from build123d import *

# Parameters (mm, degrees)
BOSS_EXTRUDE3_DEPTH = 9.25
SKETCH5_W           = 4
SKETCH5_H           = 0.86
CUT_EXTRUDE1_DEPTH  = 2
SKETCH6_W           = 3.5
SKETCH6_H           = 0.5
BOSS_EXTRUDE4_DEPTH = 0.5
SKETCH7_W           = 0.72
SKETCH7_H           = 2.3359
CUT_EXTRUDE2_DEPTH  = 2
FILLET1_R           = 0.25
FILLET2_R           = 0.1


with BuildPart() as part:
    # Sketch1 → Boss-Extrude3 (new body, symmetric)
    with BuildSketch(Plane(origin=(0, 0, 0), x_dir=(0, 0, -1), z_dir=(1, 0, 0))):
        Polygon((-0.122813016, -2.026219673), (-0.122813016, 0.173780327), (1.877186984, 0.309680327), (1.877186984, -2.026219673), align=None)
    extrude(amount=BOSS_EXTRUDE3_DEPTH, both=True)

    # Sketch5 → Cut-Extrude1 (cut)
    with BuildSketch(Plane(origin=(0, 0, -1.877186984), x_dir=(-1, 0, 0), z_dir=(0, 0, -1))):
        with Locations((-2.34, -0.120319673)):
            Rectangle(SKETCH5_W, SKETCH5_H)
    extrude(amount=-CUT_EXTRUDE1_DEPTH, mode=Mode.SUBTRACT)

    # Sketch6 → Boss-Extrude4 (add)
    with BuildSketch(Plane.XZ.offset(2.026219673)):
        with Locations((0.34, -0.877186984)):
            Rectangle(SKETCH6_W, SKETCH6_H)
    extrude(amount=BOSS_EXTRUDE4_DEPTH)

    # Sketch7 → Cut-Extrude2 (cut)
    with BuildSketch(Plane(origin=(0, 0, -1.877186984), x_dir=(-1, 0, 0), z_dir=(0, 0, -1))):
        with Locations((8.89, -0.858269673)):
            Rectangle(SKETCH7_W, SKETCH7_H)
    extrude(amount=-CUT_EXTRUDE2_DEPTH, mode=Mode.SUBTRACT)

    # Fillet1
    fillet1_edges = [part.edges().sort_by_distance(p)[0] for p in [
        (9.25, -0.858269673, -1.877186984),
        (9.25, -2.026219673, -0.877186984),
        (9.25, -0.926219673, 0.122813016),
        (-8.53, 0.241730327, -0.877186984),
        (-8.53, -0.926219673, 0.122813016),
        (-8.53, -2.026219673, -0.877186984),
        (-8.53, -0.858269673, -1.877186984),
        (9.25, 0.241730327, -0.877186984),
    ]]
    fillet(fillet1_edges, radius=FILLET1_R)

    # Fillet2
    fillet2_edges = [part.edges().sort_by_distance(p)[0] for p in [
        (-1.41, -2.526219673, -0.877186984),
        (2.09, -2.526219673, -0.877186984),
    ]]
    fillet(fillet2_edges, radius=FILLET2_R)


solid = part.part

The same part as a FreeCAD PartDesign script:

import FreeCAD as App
import Part
import Sketcher


def edges_at(feature, points):
    """Names of the edges that pass closest to the given points."""
    edges = feature.Shape.Edges
    near = lambda p: min(range(len(edges)), key=lambda i: edges[i].distToShape(Part.Vertex(*p))[0])
    return sorted({f"Edge{near(p) + 1}" for p in points})

doc = App.newDocument("Part")
body = doc.addObject("PartDesign::Body", "Body")

sketch1 = doc.addObject("Sketcher::SketchObject", "Sketch")
body.addObject(sketch1)
sketch1.AttachmentSupport = (doc.YZ_Plane, [""])
sketch1.MapMode = "FlatFace"
sketch1.addGeometry([
    Part.LineSegment(App.Vector(0.2, 0.1, 0), App.Vector(-2, 0.1, 0)),
    Part.LineSegment(App.Vector(-2, 0.1, 0), App.Vector(-2, -1.9, 0)),
    Part.LineSegment(App.Vector(-2, -1.9, 0), App.Vector(0.3, -1.9, 0)),
    Part.LineSegment(App.Vector(0.3, -1.9, 0), App.Vector(0.2, 0.1, 0)),
], False)
sketch1.addConstraint([
    Sketcher.Constraint("Coincident", 0, 2, 1, 1),
    Sketcher.Constraint("Coincident", 1, 2, 2, 1),
    Sketcher.Constraint("Coincident", 2, 2, 3, 1),
    Sketcher.Constraint("Coincident", 3, 2, 0, 1),
    Sketcher.Constraint("Horizontal", 0),
    Sketcher.Constraint("Vertical", 1),
    Sketcher.Constraint("Horizontal", 2),
    Sketcher.Constraint("DistanceY", 1, 2, 1, 1, 2.0),
    Sketcher.Constraint("DistanceX", 0, 2, 0, 1, 2.2),
    Sketcher.Constraint("DistanceX", 2, 1, 2, 2, 2.3359),
    Sketcher.Constraint("DistanceX", 0, 2, -1, 1, 2.02622),
    Sketcher.Constraint("DistanceY", -1, 1, 0, 2, 0.122813),
])
pad1 = doc.addObject("PartDesign::Pad", "Pad")
body.addObject(pad1)
pad1.Profile = sketch1
pad1.Length = 18.5
pad1.Midplane = True

sketch2 = doc.addObject("Sketcher::SketchObject", "Sketch001")
body.addObject(sketch2)
sketch2.AttachmentSupport = (doc.XY_Plane, [""])
sketch2.MapMode = "FlatFace"
sketch2.AttachmentOffset = App.Placement(App.Vector(0, 0, -1.877187), App.Rotation())
sketch2.addGeometry([
    Part.LineSegment(App.Vector(4.3, 0.3, 0), App.Vector(4.3, -0.6, 0)),
    Part.LineSegment(App.Vector(4.3, -0.6, 0), App.Vector(0.3, -0.6, 0)),
    Part.LineSegment(App.Vector(0.3, -0.6, 0), App.Vector(0.3, 0.3, 0)),
    Part.LineSegment(App.Vector(0.3, 0.3, 0), App.Vector(4.3, 0.3, 0)),
], False)
sketch2.addConstraint([
    Sketcher.Constraint("Coincident", 0, 2, 1, 1),
    Sketcher.Constraint("Coincident", 1, 2, 2, 1),
    Sketcher.Constraint("Coincident", 2, 2, 3, 1),
    Sketcher.Constraint("Coincident", 3, 2, 0, 1),
    Sketcher.Constraint("Vertical", 0),
    Sketcher.Constraint("Horizontal", 1),
    Sketcher.Constraint("Vertical", 2),
    Sketcher.Constraint("Horizontal", 3),
    Sketcher.Constraint("DistanceX", 1, 2, 1, 1, 4.0),
    Sketcher.Constraint("DistanceY", 0, 2, 0, 1, 0.86),
    Sketcher.Constraint("DistanceX", -1, 1, 0, 2, 4.34),
    Sketcher.Constraint("DistanceY", 0, 2, -1, 1, 0.55032),
])
pocket1 = doc.addObject("PartDesign::Pocket", "Pocket")
body.addObject(pocket1)
pocket1.Profile = sketch2
pocket1.Length = 2
pocket1.Reversed = True

sketch3 = doc.addObject("Sketcher::SketchObject", "Sketch002")
body.addObject(sketch3)
sketch3.AttachmentSupport = (doc.XZ_Plane, [""])
sketch3.MapMode = "FlatFace"
sketch3.AttachmentOffset = App.Placement(App.Vector(0, 0, 2.02622), App.Rotation())
sketch3.addGeometry([
    Part.LineSegment(App.Vector(-1.4, -0.6, 0), App.Vector(-1.4, -1.1, 0)),
    Part.LineSegment(App.Vector(-1.4, -1.1, 0), App.Vector(2.1, -1.1, 0)),
    Part.LineSegment(App.Vector(2.1, -1.1, 0), App.Vector(2.1, -0.6, 0)),
    Part.LineSegment(App.Vector(2.1, -0.6, 0), App.Vector(-1.4, -0.6, 0)),
], False)
sketch3.addConstraint([
    Sketcher.Constraint("Coincident", 0, 2, 1, 1),
    Sketcher.Constraint("Coincident", 1, 2, 2, 1),
    Sketcher.Constraint("Coincident", 2, 2, 3, 1),
    Sketcher.Constraint("Coincident", 3, 2, 0, 1),
    Sketcher.Constraint("Vertical", 0),
    Sketcher.Constraint("Horizontal", 1),
    Sketcher.Constraint("Vertical", 2),
    Sketcher.Constraint("Horizontal", 3),
    Sketcher.Constraint("DistanceX", 1, 1, 1, 2, 3.5),
    Sketcher.Constraint("DistanceY", 0, 2, 0, 1, 0.5),
    Sketcher.Constraint("DistanceX", 0, 2, -1, 1, 1.41),
    Sketcher.Constraint("DistanceY", 0, 2, -1, 1, 1.127187),
])
pad2 = doc.addObject("PartDesign::Pad", "Pad001")
body.addObject(pad2)
pad2.Profile = sketch3
pad2.Length = 0.5

sketch4 = doc.addObject("Sketcher::SketchObject", "Sketch003")
body.addObject(sketch4)
sketch4.AttachmentSupport = (doc.XY_Plane, [""])
sketch4.MapMode = "FlatFace"
sketch4.AttachmentOffset = App.Placement(App.Vector(0, 0, -1.877187), App.Rotation())
sketch4.addGeometry([
    Part.LineSegment(App.Vector(-8.5, 0.3, 0), App.Vector(-8.5, -2, 0)),
    Part.LineSegment(App.Vector(-8.5, -2, 0), App.Vector(-9.2, -2, 0)),
    Part.LineSegment(App.Vector(-9.2, -2, 0), App.Vector(-9.2, 0.3, 0)),
    Part.LineSegment(App.Vector(-9.2, 0.3, 0), App.Vector(-8.5, 0.3, 0)),
], False)
sketch4.addConstraint([
    Sketcher.Constraint("Coincident", 0, 2, 1, 1),
    Sketcher.Constraint("Coincident", 1, 2, 2, 1),
    Sketcher.Constraint("Coincident", 2, 2, 3, 1),
    Sketcher.Constraint("Coincident", 3, 2, 0, 1),
    Sketcher.Constraint("Vertical", 0),
    Sketcher.Constraint("Horizontal", 1),
    Sketcher.Constraint("Vertical", 2),
    Sketcher.Constraint("Horizontal", 3),
    Sketcher.Constraint("DistanceX", 1, 2, 1, 1, 0.72),
    Sketcher.Constraint("DistanceX", 0, 2, -1, 1, 8.53),
    Sketcher.Constraint("DistanceY", 0, 2, 0, 1, 2.3359),
    Sketcher.Constraint("DistanceY", 0, 2, -1, 1, 2.02622),
])
pocket2 = doc.addObject("PartDesign::Pocket", "Pocket001")
body.addObject(pocket2)
pocket2.Profile = sketch4
pocket2.Length = 2
pocket2.Reversed = True
doc.recompute()

fillet = doc.addObject("PartDesign::Fillet", "Fillet")
body.addObject(fillet)
fillet.Base = (pocket2, edges_at(pocket2, [
    (9.25, -0.858, -1.877),
    (9.25, -2.026, -0.877),
    (9.25, -0.926, 0.123),
    (-8.53, 0.242, -0.877),
    (-8.53, -0.926, 0.123),
    (-8.53, -2.026, -0.877),
    (-8.53, -0.858, -1.877),
    (9.25, 0.242, -0.877),
]))
fillet.Radius = 0.25
doc.recompute()

fillet2 = doc.addObject("PartDesign::Fillet", "Fillet001")
body.addObject(fillet2)
fillet2.Base = (fillet, edges_at(fillet, [(-1.41, -2.526, -0.877), (2.09, -2.526, -0.877)]))
fillet2.Radius = 0.1

doc.recompute()
